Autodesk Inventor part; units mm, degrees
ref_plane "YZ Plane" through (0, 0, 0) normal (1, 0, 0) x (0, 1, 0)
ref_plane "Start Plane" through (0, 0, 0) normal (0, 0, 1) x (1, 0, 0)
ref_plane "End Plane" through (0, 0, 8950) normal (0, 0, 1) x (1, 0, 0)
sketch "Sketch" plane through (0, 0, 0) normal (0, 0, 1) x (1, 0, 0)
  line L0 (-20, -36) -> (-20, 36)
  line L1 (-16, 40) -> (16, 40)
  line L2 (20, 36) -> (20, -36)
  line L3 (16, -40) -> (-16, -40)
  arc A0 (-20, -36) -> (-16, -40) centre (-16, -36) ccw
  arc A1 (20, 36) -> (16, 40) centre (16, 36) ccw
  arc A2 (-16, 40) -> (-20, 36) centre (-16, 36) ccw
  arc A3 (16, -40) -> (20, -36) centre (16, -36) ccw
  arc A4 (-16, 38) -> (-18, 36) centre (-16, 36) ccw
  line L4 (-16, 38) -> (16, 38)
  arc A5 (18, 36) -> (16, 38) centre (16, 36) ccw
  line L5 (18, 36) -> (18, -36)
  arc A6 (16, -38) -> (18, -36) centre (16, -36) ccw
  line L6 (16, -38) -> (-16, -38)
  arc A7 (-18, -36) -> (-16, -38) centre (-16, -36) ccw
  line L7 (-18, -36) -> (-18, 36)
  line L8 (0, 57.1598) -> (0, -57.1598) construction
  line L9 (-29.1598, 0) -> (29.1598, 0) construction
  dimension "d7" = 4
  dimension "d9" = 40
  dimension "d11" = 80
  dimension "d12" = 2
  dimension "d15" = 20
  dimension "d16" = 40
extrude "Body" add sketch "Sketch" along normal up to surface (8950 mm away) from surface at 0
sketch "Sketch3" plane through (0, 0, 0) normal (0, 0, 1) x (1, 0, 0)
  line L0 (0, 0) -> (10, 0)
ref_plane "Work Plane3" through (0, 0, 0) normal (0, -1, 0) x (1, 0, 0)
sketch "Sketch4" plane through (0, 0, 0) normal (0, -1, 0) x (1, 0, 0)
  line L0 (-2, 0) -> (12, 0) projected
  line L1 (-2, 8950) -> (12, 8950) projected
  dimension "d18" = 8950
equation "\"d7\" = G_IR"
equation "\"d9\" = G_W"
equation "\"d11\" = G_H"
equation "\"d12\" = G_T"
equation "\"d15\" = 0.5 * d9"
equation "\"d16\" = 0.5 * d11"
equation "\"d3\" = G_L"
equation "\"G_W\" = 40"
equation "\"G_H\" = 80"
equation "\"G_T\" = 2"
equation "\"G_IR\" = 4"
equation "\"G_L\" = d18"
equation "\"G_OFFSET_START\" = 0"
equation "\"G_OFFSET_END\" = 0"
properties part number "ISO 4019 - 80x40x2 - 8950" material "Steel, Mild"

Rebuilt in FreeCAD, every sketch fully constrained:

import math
import FreeCAD as App
import Part
import Sketcher
from FreeCAD import Vector
Q = App.Units.Quantity

doc = App.newDocument("Part")
body = doc.addObject("PartDesign::Body", "Body")

# Sketch on XY plane
sketch1 = body.newObject("Sketcher::SketchObject", "Sketch")
sketch1.AttachmentSupport = (doc.getObject("XY_Plane"), [""])
sketch1.MapMode = "FlatFace"
sketch1.addGeometry([
    Part.LineSegment(Vector(-20, 36, 0), Vector(-20, -36, 0)),  # 0
    Part.ArcOfCircle(Part.Circle(Vector(-16, -36, 0), Vector(0, 0, 1), 4), math.radians(180), math.radians(270)),  # 1
    Part.LineSegment(Vector(-16, -40, 0), Vector(16, -40, 0)),  # 2
    Part.ArcOfCircle(Part.Circle(Vector(16, -36, 0), Vector(0, 0, 1), 4), math.radians(-90), math.radians(0)),  # 3
    Part.LineSegment(Vector(20, -36, 0), Vector(20, 36, 0)),  # 4
    Part.ArcOfCircle(Part.Circle(Vector(16, 36, 0), Vector(0, 0, 1), 4), math.radians(0), math.radians(90)),  # 5
    Part.LineSegment(Vector(16, 40, 0), Vector(-16, 40, 0)),  # 6
    Part.ArcOfCircle(Part.Circle(Vector(-16, 36, 0), Vector(0, 0, 1), 4), math.radians(90), math.radians(180)),  # 7
    Part.ArcOfCircle(Part.Circle(Vector(-16, 36, 0), Vector(0, 0, 1), 2), math.radians(90), math.radians(180)),  # 8
    Part.LineSegment(Vector(-16, 38, 0), Vector(16, 38, 0)),  # 9
    Part.ArcOfCircle(Part.Circle(Vector(16, 36, 0), Vector(0, 0, 1), 2), math.radians(0), math.radians(90)),  # 10
    Part.LineSegment(Vector(18, 36, 0), Vector(18, -36, 0)),  # 11
    Part.ArcOfCircle(Part.Circle(Vector(16, -36, 0), Vector(0, 0, 1), 2), math.radians(-90), math.radians(0)),  # 12
    Part.LineSegment(Vector(16, -38, 0), Vector(-16, -38, 0)),  # 13
    Part.ArcOfCircle(Part.Circle(Vector(-16, -36, 0), Vector(0, 0, 1), 2), math.radians(180), math.radians(270)),  # 14
    Part.LineSegment(Vector(-18, -36, 0), Vector(-18, 36, 0)),  # 15
], False)
sketch1.addConstraint([
    Sketcher.Constraint("Tangent", 0, 2, 1, 1),
    Sketcher.Constraint("Tangent", 1, 2, 2, 1),
    Sketcher.Constraint("Tangent", 2, 2, 3, 1),
    Sketcher.Constraint("Tangent", 3, 2, 4, 1),
    Sketcher.Constraint("Tangent", 4, 2, 5, 1),
    Sketcher.Constraint("Tangent", 5, 2, 6, 1),
    Sketcher.Constraint("Tangent", 6, 2, 7, 1),
    Sketcher.Constraint("Tangent", 7, 2, 0, 1),
    Sketcher.Constraint("Tangent", 8, 1, 9, 1),
    Sketcher.Constraint("Tangent", 9, 2, 10, 2),
    Sketcher.Constraint("Tangent", 10, 1, 11, 1),
    Sketcher.Constraint("Tangent", 11, 2, 12, 2),
    Sketcher.Constraint("Tangent", 12, 1, 13, 1),
    Sketcher.Constraint("Tangent", 13, 2, 14, 2),
    Sketcher.Constraint("Tangent", 14, 1, 15, 1),
    Sketcher.Constraint("Tangent", 15, 2, 8, 2),
    Sketcher.Constraint("Vertical", 0),
    Sketcher.Constraint("Horizontal", 2),
    Sketcher.Constraint("Vertical", 4),
    Sketcher.Constraint("Horizontal", 6),
    Sketcher.Constraint("Horizontal", 9),
    Sketcher.Constraint("Vertical", 11),
    Sketcher.Constraint("Horizontal", 13),
    Sketcher.Constraint("Vertical", 15),
    Sketcher.Constraint("Coincident", 8, 3, 7, 3),
    Sketcher.Constraint("Coincident", 10, 3, 5, 3),
    Sketcher.Constraint("Coincident", 12, 3, 3, 3),
    Sketcher.Constraint("Equal", 1, 3),
    Sketcher.Constraint("Equal", 3, 5),
    Sketcher.Constraint("Equal", 5, 7),
    Sketcher.Constraint("Equal", 12, 14),
    Sketcher.Constraint("Symmetric", 1, 3, 5, 3, -1, 1),
    Sketcher.Constraint("Radius", 1, Q("4 mm")),
    Sketcher.Constraint("Radius", 8, Q("2 mm")),
    Sketcher.Constraint("DistanceX", 0, 2, -1, 1, Q("20 mm")),
    Sketcher.Constraint("DistanceY", 1, 2, -1, 1, Q("40 mm")),
])
pad1 = body.newObject("PartDesign::Pad", "Pad")
pad1.Profile = sketch1
pad1.Length = 8950

doc.recompute()
